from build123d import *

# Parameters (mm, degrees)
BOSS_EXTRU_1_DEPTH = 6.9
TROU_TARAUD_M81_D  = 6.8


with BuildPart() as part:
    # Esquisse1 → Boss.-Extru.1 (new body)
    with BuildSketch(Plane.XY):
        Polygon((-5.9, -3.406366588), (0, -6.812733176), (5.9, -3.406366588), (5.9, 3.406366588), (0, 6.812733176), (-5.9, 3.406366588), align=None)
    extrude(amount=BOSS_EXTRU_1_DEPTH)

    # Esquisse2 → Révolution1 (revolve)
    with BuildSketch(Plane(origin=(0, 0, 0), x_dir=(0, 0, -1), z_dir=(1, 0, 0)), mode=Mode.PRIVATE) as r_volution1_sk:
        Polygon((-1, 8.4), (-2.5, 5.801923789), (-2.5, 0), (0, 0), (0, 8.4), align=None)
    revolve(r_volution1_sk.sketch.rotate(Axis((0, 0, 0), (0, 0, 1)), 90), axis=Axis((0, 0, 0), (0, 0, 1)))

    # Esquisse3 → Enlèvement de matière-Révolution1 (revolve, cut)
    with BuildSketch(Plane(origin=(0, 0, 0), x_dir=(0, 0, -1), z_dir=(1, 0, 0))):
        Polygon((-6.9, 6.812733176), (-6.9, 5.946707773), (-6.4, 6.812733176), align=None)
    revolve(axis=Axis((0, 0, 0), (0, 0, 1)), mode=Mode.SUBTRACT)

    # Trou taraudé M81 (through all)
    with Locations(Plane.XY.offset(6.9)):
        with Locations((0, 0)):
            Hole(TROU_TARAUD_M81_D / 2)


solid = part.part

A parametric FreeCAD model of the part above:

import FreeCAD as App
import Part
import Sketcher
Q = App.Units.Quantity

doc = App.newDocument("Part")
body = doc.addObject("PartDesign::Body", "Body")

sketch1 = body.newObject("Sketcher::SketchObject", "Sketch")
sketch1.AttachmentSupport = (doc.getObject("XY_Plane"), [""])
sketch1.MapMode = "FlatFace"
sketch1.addGeometry([
    Part.LineSegment(App.Vector(-6, -3, 0), App.Vector(0, -7, 0)),
    Part.LineSegment(App.Vector(0, -7, 0), App.Vector(6, -3, 0)),
    Part.LineSegment(App.Vector(6, -3, 0), App.Vector(6, 3, 0)),
    Part.LineSegment(App.Vector(6, 3, 0), App.Vector(0, 7, 0)),
    Part.LineSegment(App.Vector(0, 7, 0), App.Vector(-6, 3, 0)),
    Part.LineSegment(App.Vector(-6, 3, 0), App.Vector(-6, -3, 0)),
], False)
sketch1.addConstraint([
    Sketcher.Constraint("Coincident", 0, 2, 1, 1),
    Sketcher.Constraint("Coincident", 1, 2, 2, 1),
    Sketcher.Constraint("Coincident", 2, 2, 3, 1),
    Sketcher.Constraint("Coincident", 3, 2, 4, 1),
    Sketcher.Constraint("Coincident", 4, 2, 5, 1),
    Sketcher.Constraint("Coincident", 5, 2, 0, 1),
    Sketcher.Constraint("Vertical", 2),
    Sketcher.Constraint("Vertical", 5),
    Sketcher.Constraint("Symmetric", 0, 2, 3, 2, -1, 1),
    Sketcher.Constraint("Symmetric", 1, 2, 4, 2, -1, 1),
    Sketcher.Constraint("PointOnObject", 0, 2, -2),
    Sketcher.Constraint("Parallel", 0, 3),
    Sketcher.Constraint("Horizontal", 2, 2, 4, 2),
    Sketcher.Constraint("Angle", 0, Q("-30 deg")),
    Sketcher.Constraint("DistanceX", -1, 1, 1, 2, 5.9),
    Sketcher.Constraint("DistanceY", 0, 2, 2, 2, 10.2191),
])
pad1 = body.newObject("PartDesign::Pad", "Pad")
pad1.Profile = sketch1
pad1.Length = 6.9

sketch2 = body.newObject("Sketcher::SketchObject", "Sketch001")
sketch2.AttachmentSupport = (doc.getObject("YZ_Plane"), [""])
sketch2.MapMode = "FlatFace"
sketch2.addGeometry([
    Part.LineSegment(App.Vector(8.4, 1, 0), App.Vector(5.8, 2.5, 0)),
    Part.LineSegment(App.Vector(5.8, 2.5, 0), App.Vector(0, 2.5, 0)),
    Part.LineSegment(App.Vector(0, 2.5, 0), App.Vector(0, 0, 0)),
    Part.LineSegment(App.Vector(0, 0, 0), App.Vector(8.4, 0, 0)),
    Part.LineSegment(App.Vector(8.4, 0, 0), App.Vector(8.4, 1, 0)),
], False)
sketch2.addConstraint([
    Sketcher.Constraint("Coincident", 0, 2, 1, 1),
    Sketcher.Constraint("Coincident", 1, 2, 2, 1),
    Sketcher.Constraint("Coincident", 2, 2, 3, 1),
    Sketcher.Constraint("Coincident", 3, 2, 4, 1),
    Sketcher.Constraint("Coincident", 4, 2, 0, 1),
    Sketcher.Constraint("Horizontal", 1),
    Sketcher.Constraint("Vertical", 2),
    Sketcher.Constraint("Horizontal", 3),
    Sketcher.Constraint("Vertical", 4),
    Sketcher.Constraint("Coincident", 2, 2, -1, 1),
    Sketcher.Constraint("DistanceY", 4, 1, 4, 2, 1.0),
    Sketcher.Constraint("Angle", 0, Q("150 deg")),
    Sketcher.Constraint("Distance", 0, 3.0),
    Sketcher.Constraint("DistanceX", 3, 1, 3, 2, 8.4),
])
revolution = body.newObject("PartDesign::Revolution", "Revolution")
revolution.Profile = sketch2
revolution.ReferenceAxis = (sketch2, ["V_Axis"])
revolution.Angle = 360

sketch3 = body.newObject("Sketcher::SketchObject", "Sketch002")
sketch3.AttachmentSupport = (doc.getObject("YZ_Plane"), [""])
sketch3.MapMode = "FlatFace"
sketch3.addGeometry([
    Part.LineSegment(App.Vector(6.8, 6.9, 0), App.Vector(5.9, 6.9, 0)),
    Part.LineSegment(App.Vector(5.9, 6.9, 0), App.Vector(6.8, 6.4, 0)),
    Part.LineSegment(App.Vector(6.8, 6.4, 0), App.Vector(6.8, 6.9, 0)),
], False)
sketch3.addConstraint([
    Sketcher.Constraint("Coincident", 0, 2, 1, 1),
    Sketcher.Constraint("Coincident", 1, 2, 2, 1),
    Sketcher.Constraint("Coincident", 2, 2, 0, 1),
    Sketcher.Constraint("Horizontal", 0),
    Sketcher.Constraint("Vertical", 2),
    Sketcher.Constraint("Angle", 1, Q("-30 deg")),
    Sketcher.Constraint("Distance", 1, 1.0),
    Sketcher.Constraint("DistanceY", -1, 1, 0, 2, 6.9),
    Sketcher.Constraint("DistanceX", -1, 1, 0, 2, 5.946708),
])
groove = body.newObject("PartDesign::Groove", "Groove")
groove.Profile = sketch3
groove.ReferenceAxis = (sketch3, ["V_Axis"])
groove.Angle = 360

sketch4 = body.newObject("Sketcher::SketchObject", "Sketch003")
sketch4.AttachmentSupport = (doc.getObject("XY_Plane"), [""])
sketch4.MapMode = "FlatFace"
sketch4.AttachmentOffset = App.Placement(App.Vector(0, 0, 6.9), App.Rotation())
sketch4.addGeometry(Part.Circle(App.Vector(0, 0, 0), App.Vector(0, 0, 1), 3.4), False)
sketch4.addConstraint([
    Sketcher.Constraint("Coincident", 0, 3, -1, 1),
    Sketcher.Constraint("Diameter", 0, 6.8),
])
doc.recompute()
hole = body.newObject("PartDesign::Hole", "Hole")
hole.Profile = sketch4
hole.ThreadType = "None"
hole.Diameter = 6.8
hole.DepthType = "ThroughAll"

doc.recompute()
